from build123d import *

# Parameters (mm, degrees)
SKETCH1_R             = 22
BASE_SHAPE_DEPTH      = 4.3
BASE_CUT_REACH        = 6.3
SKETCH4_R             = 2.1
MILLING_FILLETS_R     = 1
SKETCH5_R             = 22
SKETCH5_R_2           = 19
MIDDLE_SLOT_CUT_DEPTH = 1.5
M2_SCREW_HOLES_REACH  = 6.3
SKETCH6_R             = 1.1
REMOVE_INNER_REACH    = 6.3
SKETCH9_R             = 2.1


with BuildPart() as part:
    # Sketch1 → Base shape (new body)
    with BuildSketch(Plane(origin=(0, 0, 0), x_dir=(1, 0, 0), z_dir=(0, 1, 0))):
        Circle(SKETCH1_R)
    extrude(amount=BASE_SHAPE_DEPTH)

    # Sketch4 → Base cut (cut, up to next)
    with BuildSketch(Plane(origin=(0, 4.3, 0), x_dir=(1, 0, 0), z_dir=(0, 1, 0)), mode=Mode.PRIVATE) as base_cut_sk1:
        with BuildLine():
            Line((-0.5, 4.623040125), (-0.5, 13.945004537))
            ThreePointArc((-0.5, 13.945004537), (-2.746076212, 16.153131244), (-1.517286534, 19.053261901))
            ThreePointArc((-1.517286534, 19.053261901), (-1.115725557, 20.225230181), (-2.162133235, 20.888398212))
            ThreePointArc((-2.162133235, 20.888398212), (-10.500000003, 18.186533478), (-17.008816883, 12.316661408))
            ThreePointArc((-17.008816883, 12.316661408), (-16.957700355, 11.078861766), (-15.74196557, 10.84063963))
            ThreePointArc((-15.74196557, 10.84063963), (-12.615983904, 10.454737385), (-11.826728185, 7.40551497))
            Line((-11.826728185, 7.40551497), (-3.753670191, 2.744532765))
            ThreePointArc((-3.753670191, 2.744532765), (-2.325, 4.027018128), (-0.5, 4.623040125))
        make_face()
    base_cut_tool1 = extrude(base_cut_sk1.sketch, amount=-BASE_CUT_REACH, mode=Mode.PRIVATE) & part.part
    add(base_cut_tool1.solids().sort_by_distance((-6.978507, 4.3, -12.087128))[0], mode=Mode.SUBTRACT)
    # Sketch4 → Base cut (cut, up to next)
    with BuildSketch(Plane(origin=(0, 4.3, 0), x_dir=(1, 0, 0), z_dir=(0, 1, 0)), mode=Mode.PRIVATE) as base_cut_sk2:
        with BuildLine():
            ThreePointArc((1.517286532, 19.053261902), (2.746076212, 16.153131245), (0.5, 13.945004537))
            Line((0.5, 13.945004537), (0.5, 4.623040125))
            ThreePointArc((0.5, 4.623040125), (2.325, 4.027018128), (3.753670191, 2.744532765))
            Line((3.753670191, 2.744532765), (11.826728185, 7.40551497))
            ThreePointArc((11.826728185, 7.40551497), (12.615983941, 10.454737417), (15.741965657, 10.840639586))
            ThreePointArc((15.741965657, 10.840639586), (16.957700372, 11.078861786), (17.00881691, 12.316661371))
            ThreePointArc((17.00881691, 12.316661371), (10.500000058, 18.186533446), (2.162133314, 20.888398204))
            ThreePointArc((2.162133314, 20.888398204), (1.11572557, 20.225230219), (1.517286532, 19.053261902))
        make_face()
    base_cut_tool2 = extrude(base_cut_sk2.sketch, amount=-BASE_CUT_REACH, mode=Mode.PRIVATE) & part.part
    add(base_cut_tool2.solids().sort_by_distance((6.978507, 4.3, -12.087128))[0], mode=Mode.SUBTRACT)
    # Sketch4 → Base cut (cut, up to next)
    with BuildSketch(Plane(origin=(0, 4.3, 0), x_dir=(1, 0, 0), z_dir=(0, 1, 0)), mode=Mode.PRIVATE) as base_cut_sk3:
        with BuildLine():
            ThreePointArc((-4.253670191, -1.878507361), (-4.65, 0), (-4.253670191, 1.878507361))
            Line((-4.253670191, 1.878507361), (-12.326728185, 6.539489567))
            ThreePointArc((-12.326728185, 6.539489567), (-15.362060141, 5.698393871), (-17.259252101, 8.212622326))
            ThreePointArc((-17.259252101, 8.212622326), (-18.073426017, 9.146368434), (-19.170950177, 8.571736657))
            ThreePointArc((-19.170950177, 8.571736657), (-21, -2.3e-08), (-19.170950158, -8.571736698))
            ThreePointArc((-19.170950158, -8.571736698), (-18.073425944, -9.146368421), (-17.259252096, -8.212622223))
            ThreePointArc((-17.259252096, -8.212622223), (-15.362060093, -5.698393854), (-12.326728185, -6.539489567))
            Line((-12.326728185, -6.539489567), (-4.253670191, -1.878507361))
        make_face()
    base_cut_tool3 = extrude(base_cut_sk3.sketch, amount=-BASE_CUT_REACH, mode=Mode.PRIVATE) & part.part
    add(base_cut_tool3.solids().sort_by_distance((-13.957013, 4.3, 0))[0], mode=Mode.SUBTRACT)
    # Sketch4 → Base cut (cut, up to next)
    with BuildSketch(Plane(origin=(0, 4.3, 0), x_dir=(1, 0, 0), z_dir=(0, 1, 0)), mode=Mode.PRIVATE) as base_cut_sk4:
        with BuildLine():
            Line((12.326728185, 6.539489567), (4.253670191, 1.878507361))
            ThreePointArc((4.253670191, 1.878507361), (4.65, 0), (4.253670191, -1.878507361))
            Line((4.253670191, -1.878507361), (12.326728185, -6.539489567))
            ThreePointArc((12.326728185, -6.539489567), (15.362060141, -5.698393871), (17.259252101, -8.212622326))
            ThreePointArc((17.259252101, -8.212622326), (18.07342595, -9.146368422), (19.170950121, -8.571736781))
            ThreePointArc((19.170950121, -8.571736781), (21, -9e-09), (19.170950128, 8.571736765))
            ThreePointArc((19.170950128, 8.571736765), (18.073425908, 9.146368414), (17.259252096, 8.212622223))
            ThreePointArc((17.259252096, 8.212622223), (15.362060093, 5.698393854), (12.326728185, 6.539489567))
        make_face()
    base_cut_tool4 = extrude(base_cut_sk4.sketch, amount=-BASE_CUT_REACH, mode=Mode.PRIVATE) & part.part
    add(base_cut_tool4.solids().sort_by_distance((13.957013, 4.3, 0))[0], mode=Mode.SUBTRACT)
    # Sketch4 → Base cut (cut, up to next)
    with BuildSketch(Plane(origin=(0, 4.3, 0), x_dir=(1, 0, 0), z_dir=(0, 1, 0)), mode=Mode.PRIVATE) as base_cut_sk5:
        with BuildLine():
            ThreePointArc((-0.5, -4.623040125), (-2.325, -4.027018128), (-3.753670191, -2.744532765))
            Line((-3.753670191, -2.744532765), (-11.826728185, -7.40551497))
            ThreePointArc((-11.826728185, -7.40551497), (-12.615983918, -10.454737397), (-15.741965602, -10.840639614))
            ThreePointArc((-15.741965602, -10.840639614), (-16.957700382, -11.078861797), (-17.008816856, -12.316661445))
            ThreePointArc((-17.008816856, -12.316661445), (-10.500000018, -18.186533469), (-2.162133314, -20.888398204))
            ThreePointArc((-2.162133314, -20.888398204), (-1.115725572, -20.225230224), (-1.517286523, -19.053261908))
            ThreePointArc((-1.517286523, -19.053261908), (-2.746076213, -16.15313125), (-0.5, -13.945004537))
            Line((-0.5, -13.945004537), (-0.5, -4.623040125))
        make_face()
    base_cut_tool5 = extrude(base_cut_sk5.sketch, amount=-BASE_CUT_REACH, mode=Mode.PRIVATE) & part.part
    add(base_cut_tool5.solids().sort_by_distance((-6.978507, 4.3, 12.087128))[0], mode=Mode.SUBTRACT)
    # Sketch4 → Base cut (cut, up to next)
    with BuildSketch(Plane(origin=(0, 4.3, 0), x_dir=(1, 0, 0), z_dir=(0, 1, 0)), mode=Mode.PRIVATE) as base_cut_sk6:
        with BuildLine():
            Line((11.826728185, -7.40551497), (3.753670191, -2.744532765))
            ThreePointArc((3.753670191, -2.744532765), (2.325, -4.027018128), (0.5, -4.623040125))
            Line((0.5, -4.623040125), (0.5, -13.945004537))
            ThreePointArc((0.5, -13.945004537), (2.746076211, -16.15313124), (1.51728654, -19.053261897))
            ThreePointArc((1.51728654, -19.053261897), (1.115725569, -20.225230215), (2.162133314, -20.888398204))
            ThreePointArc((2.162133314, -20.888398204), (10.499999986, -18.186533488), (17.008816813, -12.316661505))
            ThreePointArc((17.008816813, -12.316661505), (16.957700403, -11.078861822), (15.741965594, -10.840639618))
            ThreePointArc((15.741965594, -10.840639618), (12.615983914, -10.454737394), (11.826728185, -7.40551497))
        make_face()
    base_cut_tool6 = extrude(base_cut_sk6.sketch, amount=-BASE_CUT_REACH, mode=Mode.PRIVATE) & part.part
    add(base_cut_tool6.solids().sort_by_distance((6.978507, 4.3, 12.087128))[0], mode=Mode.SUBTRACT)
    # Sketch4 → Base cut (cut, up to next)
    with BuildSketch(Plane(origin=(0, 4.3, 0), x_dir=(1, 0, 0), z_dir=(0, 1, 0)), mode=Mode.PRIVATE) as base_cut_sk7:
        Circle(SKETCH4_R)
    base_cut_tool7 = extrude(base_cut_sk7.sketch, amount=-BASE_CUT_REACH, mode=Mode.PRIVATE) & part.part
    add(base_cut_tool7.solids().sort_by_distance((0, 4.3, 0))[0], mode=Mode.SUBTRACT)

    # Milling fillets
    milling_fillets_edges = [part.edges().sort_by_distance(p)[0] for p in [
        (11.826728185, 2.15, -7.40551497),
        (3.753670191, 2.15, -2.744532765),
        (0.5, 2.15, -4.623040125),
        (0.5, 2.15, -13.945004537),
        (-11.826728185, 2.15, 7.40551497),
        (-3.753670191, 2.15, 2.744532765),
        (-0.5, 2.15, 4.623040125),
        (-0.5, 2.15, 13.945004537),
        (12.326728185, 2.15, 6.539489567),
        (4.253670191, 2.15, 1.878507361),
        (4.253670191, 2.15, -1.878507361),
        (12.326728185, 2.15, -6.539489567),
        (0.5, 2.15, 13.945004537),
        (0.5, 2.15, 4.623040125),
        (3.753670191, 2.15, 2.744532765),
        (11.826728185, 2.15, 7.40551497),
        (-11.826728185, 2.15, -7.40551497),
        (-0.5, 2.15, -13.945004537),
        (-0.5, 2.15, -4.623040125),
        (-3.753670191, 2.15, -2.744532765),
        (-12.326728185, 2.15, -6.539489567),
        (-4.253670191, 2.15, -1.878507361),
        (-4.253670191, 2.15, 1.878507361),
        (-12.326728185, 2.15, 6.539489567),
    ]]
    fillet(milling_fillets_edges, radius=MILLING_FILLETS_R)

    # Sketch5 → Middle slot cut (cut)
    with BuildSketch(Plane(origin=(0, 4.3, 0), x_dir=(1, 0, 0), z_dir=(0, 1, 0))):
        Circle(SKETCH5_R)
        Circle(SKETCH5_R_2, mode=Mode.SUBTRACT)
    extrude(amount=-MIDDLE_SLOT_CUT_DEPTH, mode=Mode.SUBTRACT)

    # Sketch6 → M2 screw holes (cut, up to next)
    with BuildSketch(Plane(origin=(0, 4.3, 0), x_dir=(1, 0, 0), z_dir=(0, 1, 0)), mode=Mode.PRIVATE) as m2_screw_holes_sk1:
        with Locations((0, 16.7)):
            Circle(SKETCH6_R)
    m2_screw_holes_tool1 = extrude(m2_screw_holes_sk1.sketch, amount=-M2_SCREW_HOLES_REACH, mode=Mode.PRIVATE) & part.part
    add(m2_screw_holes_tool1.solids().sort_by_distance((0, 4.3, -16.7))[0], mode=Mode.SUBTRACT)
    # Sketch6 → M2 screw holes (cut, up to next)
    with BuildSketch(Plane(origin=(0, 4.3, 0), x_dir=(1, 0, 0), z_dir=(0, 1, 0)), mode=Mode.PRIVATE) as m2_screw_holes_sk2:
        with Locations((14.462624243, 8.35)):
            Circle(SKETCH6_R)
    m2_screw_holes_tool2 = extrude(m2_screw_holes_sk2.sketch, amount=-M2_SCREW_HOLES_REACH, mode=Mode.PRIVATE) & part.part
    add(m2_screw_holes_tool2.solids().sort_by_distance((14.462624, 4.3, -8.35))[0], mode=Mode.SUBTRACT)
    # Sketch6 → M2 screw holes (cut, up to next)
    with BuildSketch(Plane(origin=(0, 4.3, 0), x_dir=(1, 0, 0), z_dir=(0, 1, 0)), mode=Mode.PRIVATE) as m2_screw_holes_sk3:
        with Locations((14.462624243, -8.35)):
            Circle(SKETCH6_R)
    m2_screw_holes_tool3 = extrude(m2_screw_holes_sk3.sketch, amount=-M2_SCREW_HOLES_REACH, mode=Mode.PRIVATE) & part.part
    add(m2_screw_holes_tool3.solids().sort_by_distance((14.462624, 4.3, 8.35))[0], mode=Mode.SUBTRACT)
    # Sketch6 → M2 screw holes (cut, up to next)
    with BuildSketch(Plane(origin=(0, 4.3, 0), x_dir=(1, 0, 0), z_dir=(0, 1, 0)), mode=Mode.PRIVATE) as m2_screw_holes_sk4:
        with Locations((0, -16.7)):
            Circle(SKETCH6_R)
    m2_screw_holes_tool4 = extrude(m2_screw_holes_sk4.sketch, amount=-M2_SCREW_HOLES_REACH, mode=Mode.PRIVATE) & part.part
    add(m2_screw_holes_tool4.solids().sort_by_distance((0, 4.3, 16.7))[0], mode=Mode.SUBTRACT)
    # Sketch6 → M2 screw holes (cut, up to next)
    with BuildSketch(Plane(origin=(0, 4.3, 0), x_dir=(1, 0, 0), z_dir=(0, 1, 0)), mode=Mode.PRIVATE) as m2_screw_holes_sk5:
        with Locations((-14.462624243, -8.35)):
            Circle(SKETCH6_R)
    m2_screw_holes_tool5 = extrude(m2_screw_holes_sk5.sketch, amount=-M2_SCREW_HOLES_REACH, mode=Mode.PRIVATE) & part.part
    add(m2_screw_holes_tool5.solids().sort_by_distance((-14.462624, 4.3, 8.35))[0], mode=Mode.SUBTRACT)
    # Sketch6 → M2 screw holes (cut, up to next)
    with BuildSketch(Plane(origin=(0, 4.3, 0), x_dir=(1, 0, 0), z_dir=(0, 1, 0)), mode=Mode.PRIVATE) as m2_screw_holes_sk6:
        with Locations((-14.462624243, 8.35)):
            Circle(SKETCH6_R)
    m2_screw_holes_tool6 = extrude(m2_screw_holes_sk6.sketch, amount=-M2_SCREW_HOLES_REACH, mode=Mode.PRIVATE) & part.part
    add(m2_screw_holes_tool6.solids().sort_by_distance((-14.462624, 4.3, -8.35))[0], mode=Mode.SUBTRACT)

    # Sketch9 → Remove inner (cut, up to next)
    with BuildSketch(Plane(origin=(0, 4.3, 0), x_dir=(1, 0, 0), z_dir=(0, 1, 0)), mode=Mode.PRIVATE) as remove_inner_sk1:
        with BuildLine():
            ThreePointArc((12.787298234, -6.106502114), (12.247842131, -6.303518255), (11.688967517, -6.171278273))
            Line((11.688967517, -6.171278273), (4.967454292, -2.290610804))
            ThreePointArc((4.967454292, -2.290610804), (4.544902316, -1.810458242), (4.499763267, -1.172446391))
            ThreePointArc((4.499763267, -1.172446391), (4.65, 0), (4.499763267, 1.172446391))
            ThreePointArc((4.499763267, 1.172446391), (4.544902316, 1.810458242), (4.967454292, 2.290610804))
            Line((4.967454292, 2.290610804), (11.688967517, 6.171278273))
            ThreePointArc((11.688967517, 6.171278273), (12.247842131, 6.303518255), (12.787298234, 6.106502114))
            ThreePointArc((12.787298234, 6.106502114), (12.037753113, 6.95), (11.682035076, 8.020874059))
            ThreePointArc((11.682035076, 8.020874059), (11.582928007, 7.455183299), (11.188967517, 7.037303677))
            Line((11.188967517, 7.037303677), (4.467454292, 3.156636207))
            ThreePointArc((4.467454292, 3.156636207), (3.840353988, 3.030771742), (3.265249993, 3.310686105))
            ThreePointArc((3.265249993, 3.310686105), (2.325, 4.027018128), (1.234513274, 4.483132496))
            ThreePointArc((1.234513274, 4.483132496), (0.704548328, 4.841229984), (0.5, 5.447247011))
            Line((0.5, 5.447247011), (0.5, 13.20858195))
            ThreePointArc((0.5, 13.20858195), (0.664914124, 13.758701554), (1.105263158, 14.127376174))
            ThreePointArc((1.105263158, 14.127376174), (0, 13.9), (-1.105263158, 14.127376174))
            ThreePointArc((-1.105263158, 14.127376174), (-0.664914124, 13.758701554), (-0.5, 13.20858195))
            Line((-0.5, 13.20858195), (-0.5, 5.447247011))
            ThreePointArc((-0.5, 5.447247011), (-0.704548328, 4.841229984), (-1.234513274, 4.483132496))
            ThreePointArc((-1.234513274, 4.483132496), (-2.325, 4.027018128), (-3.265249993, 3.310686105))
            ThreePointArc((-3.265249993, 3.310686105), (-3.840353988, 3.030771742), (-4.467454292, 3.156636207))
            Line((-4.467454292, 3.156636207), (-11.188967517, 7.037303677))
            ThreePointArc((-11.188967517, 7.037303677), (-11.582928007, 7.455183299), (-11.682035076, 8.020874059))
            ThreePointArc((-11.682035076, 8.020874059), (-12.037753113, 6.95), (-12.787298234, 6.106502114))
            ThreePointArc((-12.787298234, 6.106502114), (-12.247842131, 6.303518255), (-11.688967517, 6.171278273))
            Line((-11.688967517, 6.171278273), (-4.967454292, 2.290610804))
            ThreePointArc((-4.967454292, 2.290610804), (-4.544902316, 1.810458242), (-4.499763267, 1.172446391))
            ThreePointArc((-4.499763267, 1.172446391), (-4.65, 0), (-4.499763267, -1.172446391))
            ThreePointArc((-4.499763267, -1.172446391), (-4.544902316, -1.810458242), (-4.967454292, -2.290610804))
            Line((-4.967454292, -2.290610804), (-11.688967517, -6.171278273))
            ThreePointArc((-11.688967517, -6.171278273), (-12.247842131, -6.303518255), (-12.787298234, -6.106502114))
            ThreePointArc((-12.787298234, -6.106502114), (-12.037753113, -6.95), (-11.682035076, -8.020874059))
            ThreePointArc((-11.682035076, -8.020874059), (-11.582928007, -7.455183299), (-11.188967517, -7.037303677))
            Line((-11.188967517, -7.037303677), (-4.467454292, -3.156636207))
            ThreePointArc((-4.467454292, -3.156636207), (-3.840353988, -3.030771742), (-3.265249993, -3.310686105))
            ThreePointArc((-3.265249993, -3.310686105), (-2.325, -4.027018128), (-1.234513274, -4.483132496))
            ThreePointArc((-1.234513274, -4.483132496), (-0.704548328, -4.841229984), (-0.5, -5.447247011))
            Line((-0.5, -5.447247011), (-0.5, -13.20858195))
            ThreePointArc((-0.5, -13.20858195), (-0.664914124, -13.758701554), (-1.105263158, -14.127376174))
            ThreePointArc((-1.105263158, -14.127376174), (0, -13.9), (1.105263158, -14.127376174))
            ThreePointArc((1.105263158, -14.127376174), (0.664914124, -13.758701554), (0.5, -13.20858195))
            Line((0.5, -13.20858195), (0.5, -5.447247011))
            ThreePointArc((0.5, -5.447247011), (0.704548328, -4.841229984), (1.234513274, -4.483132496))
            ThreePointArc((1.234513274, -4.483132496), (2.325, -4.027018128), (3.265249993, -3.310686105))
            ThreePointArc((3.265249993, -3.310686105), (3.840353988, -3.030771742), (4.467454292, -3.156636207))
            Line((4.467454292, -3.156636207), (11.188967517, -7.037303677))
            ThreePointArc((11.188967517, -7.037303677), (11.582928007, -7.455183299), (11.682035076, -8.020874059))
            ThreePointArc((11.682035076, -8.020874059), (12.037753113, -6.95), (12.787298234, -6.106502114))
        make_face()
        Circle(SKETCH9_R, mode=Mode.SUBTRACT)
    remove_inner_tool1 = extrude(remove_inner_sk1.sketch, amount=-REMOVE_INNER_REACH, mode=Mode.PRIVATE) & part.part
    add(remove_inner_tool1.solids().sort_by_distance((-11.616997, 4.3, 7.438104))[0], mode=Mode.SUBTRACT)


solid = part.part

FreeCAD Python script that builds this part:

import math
import FreeCAD as App
import Part
import Sketcher

V = App.Vector
Q = App.Units.Quantity


def edges_at(feature, points):
    """Names of the edges that pass closest to the given points."""
    edges = feature.Shape.Edges
    near = lambda p: min(range(len(edges)), key=lambda i: edges[i].distToShape(Part.Vertex(*p))[0])
    return sorted({f"Edge{near(p) + 1}" for p in points})

doc = App.newDocument("Part")
body = doc.addObject("PartDesign::Body", "Body")

sketch1 = doc.addObject("Sketcher::SketchObject", "Sketch")
body.addObject(sketch1)
sketch1.AttachmentSupport = (doc.XZ_Plane, [""])
sketch1.MapMode = "FlatFace"
sketch1.addGeometry(Part.Circle(V(0, 0, 0), V(0, 0, 1), 22), False)
sketch1.addConstraint([
    Sketcher.Constraint("Coincident", 0, 3, -1, 1),
    Sketcher.Constraint("Diameter", 0, Q("44 mm")),
])
pad1 = doc.addObject("PartDesign::Pad", "Pad")
body.addObject(pad1)
pad1.Profile = sketch1
pad1.Length = 4.3
pad1.Reversed = True

sketch2 = doc.addObject("Sketcher::SketchObject", "Sketch001")
body.addObject(sketch2)
sketch2.AttachmentSupport = (doc.XZ_Plane, [""])
sketch2.MapMode = "FlatFace"
sketch2.AttachmentOffset = App.Placement(V(0, 0, -4.3), App.Rotation())
sketch2.addGeometry([
    Part.LineSegment(V(-0.5, -4.6, 0), V(-0.5, -13.9, 0)),
    Part.ArcOfCircle(Part.Circle(V(0, -16.7, 0), V(0, 0, 1), 2.8), math.radians(100), math.radians(237)),
    Part.ArcOfCircle(Part.Circle(V(-2.1, -19.9, 0), V(0, 0, 1), 1), math.radians(-96), math.radians(57)),
    Part.ArcOfCircle(Part.Circle(V(0, 0, 0), V(0, 0, 1), 21), math.radians(-144), math.radians(-96)),
    Part.ArcOfCircle(Part.Circle(V(-16.2, -11.7, 0), V(0, 0, 1), 1), math.radians(63), math.radians(216)),
    Part.ArcOfCircle(Part.Circle(V(-14.5, -8.3, 0), V(0, 0, 1), 2.8), math.radians(-117), math.radians(20)),
    Part.LineSegment(V(-11.8, -7.4, 0), V(-3.8, -2.7, 0)),
    Part.ArcOfCircle(Part.Circle(V(0, 0, 0), V(0, 0, 1), 4.6), math.radians(-144), math.radians(-96)),
], False)
sketch2.addConstraint([
    Sketcher.Constraint("Coincident", 0, 2, 1, 1),
    Sketcher.Constraint("Tangent", 1, 2, 2, 2),
    Sketcher.Constraint("Tangent", 2, 1, 3, 2),
    Sketcher.Constraint("Tangent", 3, 1, 4, 2),
    Sketcher.Constraint("Tangent", 4, 1, 5, 1),
    Sketcher.Constraint("Coincident", 5, 2, 6, 1),
    Sketcher.Constraint("Coincident", 6, 2, 7, 1),
    Sketcher.Constraint("Coincident", 7, 2, 0, 1),
    Sketcher.Constraint("Vertical", 0),
    Sketcher.Constraint("Coincident", 3, 3, -1, 1),
    Sketcher.Constraint("Coincident", 7, 3, -1, 1),
    Sketcher.Constraint("Equal", 2, 4),
    Sketcher.Constraint("Equal", 1, 5),
    Sketcher.Constraint("PointOnObject", 1, 3, -2),
    Sketcher.Constraint("Radius", 2, Q("1 mm")),
    Sketcher.Constraint("Radius", 3, Q("21 mm")),
    Sketcher.Constraint("Radius", 1, Q("2.8 mm")),
    Sketcher.Constraint("Angle", 6, Q("30 deg")),
    Sketcher.Constraint("Radius", 7, Q("4.65 mm")),
    Sketcher.Constraint("DistanceY", 1, 3, -1, 1, Q("16.7 mm")),
    Sketcher.Constraint("DistanceX", 0, 2, -1, 1, Q("0.5 mm")),
    Sketcher.Constraint("DistanceY", 5, 3, -1, 1, Q("8.35 mm")),
    Sketcher.Constraint("DistanceX", 4, 3, 2, 3, Q("14.139699 mm")),
    Sketcher.Constraint("DistanceX", 5, 2, -1, 1, Q("11.826728 mm")),
])
pocket1 = doc.addObject("PartDesign::Pocket", "Pocket")
body.addObject(pocket1)
pocket1.Profile = sketch2
pocket1.Type = "UpToFirst"
pocket1.Reversed = True

sketch3 = doc.addObject("Sketcher::SketchObject", "Sketch002")
body.addObject(sketch3)
sketch3.AttachmentSupport = (doc.XZ_Plane, [""])
sketch3.MapMode = "FlatFace"
sketch3.AttachmentOffset = App.Placement(V(0, 0, -4.3), App.Rotation())
sketch3.addGeometry([
    Part.ArcOfCircle(Part.Circle(V(0, -16.7, 0), V(0, 0, 1), 2.8), math.radians(-57), math.radians(80)),
    Part.LineSegment(V(0.5, -13.9, 0), V(0.5, -4.6, 0)),
    Part.ArcOfCircle(Part.Circle(V(0, 0, 0), V(0, 0, 1), 4.6), math.radians(-84), math.radians(-36)),
    Part.LineSegment(V(3.8, -2.7, 0), V(11.8, -7.4, 0)),
    Part.ArcOfCircle(Part.Circle(V(14.5, -8.3, 0), V(0, 0, 1), 2.8), math.radians(160), math.radians(297)),
    Part.ArcOfCircle(Part.Circle(V(16.2, -11.7, 0), V(0, 0, 1), 1), math.radians(-36), math.radians(117)),
    Part.ArcOfCircle(Part.Circle(V(0, 0, 0), V(0, 0, 1), 21), math.radians(-84), math.radians(-36)),
    Part.ArcOfCircle(Part.Circle(V(2.1, -19.9, 0), V(0, 0, 1), 1), math.radians(123), math.radians(276)),
], False)
sketch3.addConstraint([
    Sketcher.Constraint("Coincident", 0, 2, 1, 1),
    Sketcher.Constraint("Coincident", 1, 2, 2, 1),
    Sketcher.Constraint("Coincident", 2, 2, 3, 1),
    Sketcher.Constraint("Coincident", 3, 2, 4, 1),
    Sketcher.Constraint("Tangent", 4, 2, 5, 2),
    Sketcher.Constraint("Tangent", 5, 1, 6, 2),
    Sketcher.Constraint("Tangent", 6, 1, 7, 2),
    Sketcher.Constraint("Tangent", 7, 1, 0, 1),
    Sketcher.Constraint("Vertical", 1),
    Sketcher.Constraint("Coincident", 2, 3, -1, 1),
    Sketcher.Constraint("Coincident", 6, 3, -1, 1),
    Sketcher.Constraint("Equal", 0, 4),
    Sketcher.Constraint("Equal", 5, 7),
    Sketcher.Constraint("PointOnObject", 0, 3, -2),
    Sketcher.Constraint("Radius", 5, Q("1 mm")),
    Sketcher.Constraint("Radius", 6, Q("21 mm")),
    Sketcher.Constraint("Radius", 0, Q("2.8 mm")),
    Sketcher.Constraint("Angle", 3, Q("-30 deg")),
    Sketcher.Constraint("Radius", 2, Q("4.65 mm")),
    Sketcher.Constraint("DistanceY", 0, 3, -1, 1, Q("16.7 mm")),
    Sketcher.Constraint("DistanceX", -1, 1, 0, 2, Q("0.5 mm")),
    Sketcher.Constraint("DistanceY", 4, 3, -1, 1, Q("8.35 mm")),
    Sketcher.Constraint("DistanceX", 7, 3, 5, 3, Q("14.139699 mm")),
    Sketcher.Constraint("DistanceX", -1, 1, 2, 2, Q("3.75367 mm")),
])
pocket2 = doc.addObject("PartDesign::Pocket", "Pocket001")
body.addObject(pocket2)
pocket2.Profile = sketch3
pocket2.Type = "UpToFirst"
pocket2.Reversed = True

sketch4 = doc.addObject("Sketcher::SketchObject", "Sketch003")
body.addObject(sketch4)
sketch4.AttachmentSupport = (doc.XZ_Plane, [""])
sketch4.MapMode = "FlatFace"
sketch4.AttachmentOffset = App.Placement(V(0, 0, -4.3), App.Rotation())
sketch4.addGeometry([
    Part.ArcOfCircle(Part.Circle(V(0, 0, 0), V(0, 0, 1), 4.6), math.radians(156), math.radians(204)),
    Part.LineSegment(V(-4.3, -1.9, 0), V(-12.3, -6.5, 0)),
    Part.ArcOfCircle(Part.Circle(V(-14.5, -8.4, 0), V(0, 0, 1), 2.8), math.radians(40), math.radians(177)),
    Part.ArcOfCircle(Part.Circle(V(-18.3, -8.2, 0), V(0, 0, 1), 1), math.radians(-156), math.radians(-3)),
    Part.ArcOfCircle(Part.Circle(V(0, 0, 0), V(0, 0, 1), 21), math.radians(156), math.radians(204)),
    Part.ArcOfCircle(Part.Circle(V(-18.3, 8.2, 0), V(0, 0, 1), 1), math.radians(3), math.radians(156)),
    Part.ArcOfCircle(Part.Circle(V(-14.5, 8.3, 0), V(0, 0, 1), 2.8), math.radians(-177), math.radians(-40)),
    Part.LineSegment(V(-12.3, 6.5, 0), V(-4.3, 1.9, 0)),
], False)
sketch4.addConstraint([
    Sketcher.Constraint("Coincident", 0, 2, 1, 1),
    Sketcher.Constraint("Coincident", 1, 2, 2, 1),
    Sketcher.Constraint("Tangent", 2, 2, 3, 2),
    Sketcher.Constraint("Tangent", 3, 1, 4, 2),
    Sketcher.Constraint("Tangent", 4, 1, 5, 2),
    Sketcher.Constraint("Tangent", 5, 1, 6, 1),
    Sketcher.Constraint("Coincident", 6, 2, 7, 1),
    Sketcher.Constraint("Coincident", 7, 2, 0, 1),
    Sketcher.Constraint("Coincident", 0, 3, -1, 1),
    Sketcher.Constraint("Coincident", 4, 3, -1, 1),
    Sketcher.Constraint("Equal", 3, 5),
    Sketcher.Constraint("Equal", 2, 6),
    Sketcher.Constraint("Symmetric", 2, 3, 6, 3, -1),
    Sketcher.Constraint("Vertical", 1, 2, 6, 2),
    Sketcher.Constraint("Vertical", 0, 2, 7, 2),
    Sketcher.Constraint("Radius", 3, Q("1 mm")),
    Sketcher.Constraint("Radius", 4, Q("21 mm")),
    Sketcher.Constraint("Radius", 2, Q("2.8 mm")),
    Sketcher.Constraint("Angle", 1, Q("-150 deg")),
    Sketcher.Constraint("Radius", 0, Q("4.65 mm")),
    Sketcher.Constraint("DistanceY", 2, 3, 6, 3, Q("16.7 mm")),
    Sketcher.Constraint("DistanceX", 3, 1, 2, 2, Q("1.911698 mm")),
    Sketcher.Constraint("DistanceX", 0, 2, -1, 1, Q("4.25367 mm")),
])
pocket3 = doc.addObject("PartDesign::Pocket", "Pocket002")
body.addObject(pocket3)
pocket3.Profile = sketch4
pocket3.Type = "UpToFirst"
pocket3.Reversed = True

sketch5 = doc.addObject("Sketcher::SketchObject", "Sketch004")
body.addObject(sketch5)
sketch5.AttachmentSupport = (doc.XZ_Plane, [""])
sketch5.MapMode = "FlatFace"
sketch5.AttachmentOffset = App.Placement(V(0, 0, -4.3), App.Rotation())
sketch5.addGeometry([
    Part.LineSegment(V(12.3, -6.5, 0), V(4.3, -1.9, 0)),
    Part.ArcOfCircle(Part.Circle(V(0, 0, 0), V(0, 0, 1), 4.6), math.radians(-24), math.radians(24)),
    Part.LineSegment(V(4.3, 1.9, 0), V(12.3, 6.5, 0)),
    Part.ArcOfCircle(Part.Circle(V(14.5, 8.4, 0), V(0, 0, 1), 2.8), math.radians(-140), math.radians(-3)),
    Part.ArcOfCircle(Part.Circle(V(18.3, 8.2, 0), V(0, 0, 1), 1), math.radians(24), math.radians(177)),
    Part.ArcOfCircle(Part.Circle(V(0, 0, 0), V(0, 0, 1), 21), math.radians(-24), math.radians(24)),
    Part.ArcOfCircle(Part.Circle(V(18.3, -8.2, 0), V(0, 0, 1), 1), math.radians(-177), math.radians(-24)),
    Part.ArcOfCircle(Part.Circle(V(14.5, -8.3, 0), V(0, 0, 1), 2.8), math.radians(3), math.radians(140)),
], False)
sketch5.addConstraint([
    Sketcher.Constraint("Coincident", 0, 2, 1, 1),
    Sketcher.Constraint("Coincident", 1, 2, 2, 1),
    Sketcher.Constraint("Coincident", 2, 2, 3, 1),
    Sketcher.Constraint("Tangent", 3, 2, 4, 2),
    Sketcher.Constraint("Tangent", 4, 1, 5, 2),
    Sketcher.Constraint("Tangent", 5, 1, 6, 2),
    Sketcher.Constraint("Tangent", 6, 1, 7, 1),
    Sketcher.Constraint("Coincident", 7, 2, 0, 1),
    Sketcher.Constraint("Coincident", 1, 3, -1, 1),
    Sketcher.Constraint("Coincident", 5, 3, -1, 1),
    Sketcher.Constraint("Equal", 4, 6),
    Sketcher.Constraint("Equal", 3, 7),
    Sketcher.Constraint("Symmetric", 3, 3, 7, 3, -1),
    Sketcher.Constraint("Vertical", 0, 2, 1, 2),
    Sketcher.Constraint("Vertical", 2, 2, 7, 2),
    Sketcher.Constraint("Radius", 4, Q("1 mm")),
    Sketcher.Constraint("Radius", 5, Q("21 mm")),
    Sketcher.Constraint("Radius", 3, Q("2.8 mm")),
    Sketcher.Constraint("Angle", 0, Q("150 deg")),
    Sketcher.Constraint("Radius", 1, Q("4.65 mm")),
    Sketcher.Constraint("DistanceY", 7, 3, 3, 3, Q("16.7 mm")),
    Sketcher.Constraint("DistanceX", 3, 2, 4, 1, Q("1.911698 mm")),
    Sketcher.Constraint("DistanceX", -1, 1, 0, 2, Q("4.25367 mm")),
])
pocket4 = doc.addObject("PartDesign::Pocket", "Pocket003")
body.addObject(pocket4)
pocket4.Profile = sketch5
pocket4.Type = "UpToFirst"
pocket4.Reversed = True

sketch6 = doc.addObject("Sketcher::SketchObject", "Sketch005")
body.addObject(sketch6)
sketch6.AttachmentSupport = (doc.XZ_Plane, [""])
sketch6.MapMode = "FlatFace"
sketch6.AttachmentOffset = App.Placement(V(0, 0, -4.3), App.Rotation())
sketch6.addGeometry([
    Part.ArcOfCircle(Part.Circle(V(0, 0, 0), V(0, 0, 1), 4.6), math.radians(96), math.radians(144)),
    Part.LineSegment(V(-3.8, 2.7, 0), V(-11.8, 7.4, 0)),
    Part.ArcOfCircle(Part.Circle(V(-14.5, 8.3, 0), V(0, 0, 1), 2.8), math.radians(-20), math.radians(117)),
    Part.ArcOfCircle(Part.Circle(V(-16.2, 11.7, 0), V(0, 0, 1), 1), math.radians(144), math.radians(297)),
    Part.ArcOfCircle(Part.Circle(V(0, 0, 0), V(0, 0, 1), 21), math.radians(96), math.radians(144)),
    Part.ArcOfCircle(Part.Circle(V(-2.1, 19.9, 0), V(0, 0, 1), 1), math.radians(-57), math.radians(96)),
    Part.ArcOfCircle(Part.Circle(V(0, 16.7, 0), V(0, 0, 1), 2.8), math.radians(123), math.radians(260)),
    Part.LineSegment(V(-0.5, 13.9, 0), V(-0.5, 4.6, 0)),
], False)
sketch6.addConstraint([
    Sketcher.Constraint("Coincident", 0, 2, 1, 1),
    Sketcher.Constraint("Coincident", 1, 2, 2, 1),
    Sketcher.Constraint("Tangent", 2, 2, 3, 2),
    Sketcher.Constraint("Tangent", 3, 1, 4, 2),
    Sketcher.Constraint("Tangent", 4, 1, 5, 2),
    Sketcher.Constraint("Tangent", 5, 1, 6, 1),
    Sketcher.Constraint("Coincident", 6, 2, 7, 1),
    Sketcher.Constraint("Coincident", 7, 2, 0, 1),
    Sketcher.Constraint("Vertical", 7),
    Sketcher.Constraint("Coincident", 0, 3, -1, 1),
    Sketcher.Constraint("Coincident", 4, 3, -1, 1),
    Sketcher.Constraint("Equal", 3, 5),
    Sketcher.Constraint("Equal", 2, 6),
    Sketcher.Constraint("PointOnObject", 6, 3, -2),
    Sketcher.Constraint("Radius", 3, Q("1 mm")),
    Sketcher.Constraint("Radius", 4, Q("21 mm")),
    Sketcher.Constraint("Radius", 2, Q("2.8 mm")),
    Sketcher.Constraint("Angle", 1, Q("150 deg")),
    Sketcher.Constraint("Radius", 0, Q("4.65 mm")),
    Sketcher.Constraint("DistanceY", -1, 1, 6, 3, Q("16.7 mm")),
    Sketcher.Constraint("DistanceX", 6, 2, -1, 1, Q("0.5 mm")),
    Sketcher.Constraint("DistanceY", -1, 1, 2, 3, Q("8.35 mm")),
    Sketcher.Constraint("DistanceX", 3, 3, 5, 3, Q("14.139699 mm")),
    Sketcher.Constraint("DistanceX", 0, 2, -1, 1, Q("3.75367 mm")),
])
pocket5 = doc.addObject("PartDesign::Pocket", "Pocket004")
body.addObject(pocket5)
pocket5.Profile = sketch6
pocket5.Type = "UpToFirst"
pocket5.Reversed = True

sketch7 = doc.addObject("Sketcher::SketchObject", "Sketch006")
body.addObject(sketch7)
sketch7.AttachmentSupport = (doc.XZ_Plane, [""])
sketch7.MapMode = "FlatFace"
sketch7.AttachmentOffset = App.Placement(V(0, 0, -4.3), App.Rotation())
sketch7.addGeometry([
    Part.LineSegment(V(11.8, 7.4, 0), V(3.8, 2.7, 0)),
    Part.ArcOfCircle(Part.Circle(V(0, 0, 0), V(0, 0, 1), 4.6), math.radians(36), math.radians(84)),
    Part.LineSegment(V(0.5, 4.6, 0), V(0.5, 13.9, 0)),
    Part.ArcOfCircle(Part.Circle(V(0, 16.7, 0), V(0, 0, 1), 2.8), math.radians(-80), math.radians(57)),
    Part.ArcOfCircle(Part.Circle(V(2.1, 19.9, 0), V(0, 0, 1), 1), math.radians(84), math.radians(237)),
    Part.ArcOfCircle(Part.Circle(V(0, 0, 0), V(0, 0, 1), 21), math.radians(36), math.radians(84)),
    Part.ArcOfCircle(Part.Circle(V(16.2, 11.7, 0), V(0, 0, 1), 1), math.radians(-117), math.radians(36)),
    Part.ArcOfCircle(Part.Circle(V(14.5, 8.3, 0), V(0, 0, 1), 2.8), math.radians(63), math.radians(200)),
], False)
sketch7.addConstraint([
    Sketcher.Constraint("Coincident", 0, 2, 1, 1),
    Sketcher.Constraint("Coincident", 1, 2, 2, 1),
    Sketcher.Constraint("Coincident", 2, 2, 3, 1),
    Sketcher.Constraint("Tangent", 3, 2, 4, 2),
    Sketcher.Constraint("Tangent", 4, 1, 5, 2),
    Sketcher.Constraint("Tangent", 5, 1, 6, 2),
    Sketcher.Constraint("Tangent", 6, 1, 7, 1),
    Sketcher.Constraint("Coincident", 7, 2, 0, 1),
    Sketcher.Constraint("Vertical", 2),
    Sketcher.Constraint("Coincident", 1, 3, -1, 1),
    Sketcher.Constraint("Coincident", 5, 3, -1, 1),
    Sketcher.Constraint("Equal", 4, 6),
    Sketcher.Constraint("Equal", 3, 7),
    Sketcher.Constraint("PointOnObject", 3, 3, -2),
    Sketcher.Constraint("Radius", 4, Q("1 mm")),
    Sketcher.Constraint("Radius", 5, Q("21 mm")),
    Sketcher.Constraint("Radius", 3, Q("2.8 mm")),
    Sketcher.Constraint("Angle", 0, Q("-150 deg")),
    Sketcher.Constraint("Radius", 1, Q("4.65 mm")),
    Sketcher.Constraint("DistanceY", -1, 1, 3, 3, Q("16.7 mm")),
    Sketcher.Constraint("DistanceX", -1, 1, 1, 2, Q("0.5 mm")),
    Sketcher.Constraint("DistanceY", -1, 1, 7, 3, Q("8.35 mm")),
    Sketcher.Constraint("DistanceX", 4, 3, 6, 3, Q("14.139699 mm")),
    Sketcher.Constraint("DistanceX", -1, 1, 0, 2, Q("3.75367 mm")),
])
pocket6 = doc.addObject("PartDesign::Pocket", "Pocket005")
body.addObject(pocket6)
pocket6.Profile = sketch7
pocket6.Type = "UpToFirst"
pocket6.Reversed = True

sketch8 = doc.addObject("Sketcher::SketchObject", "Sketch007")
body.addObject(sketch8)
sketch8.AttachmentSupport = (doc.XZ_Plane, [""])
sketch8.MapMode = "FlatFace"
sketch8.AttachmentOffset = App.Placement(V(0, 0, -4.3), App.Rotation())
sketch8.addGeometry(Part.Circle(V(0, 0, 0), V(0, 0, 1), 2.1), False)
sketch8.addConstraint([
    Sketcher.Constraint("Coincident", 0, 3, -1, 1),
    Sketcher.Constraint("Diameter", 0, Q("4.2 mm")),
])
pocket7 = doc.addObject("PartDesign::Pocket", "Pocket006")
body.addObject(pocket7)
pocket7.Profile = sketch8
pocket7.Type = "UpToFirst"
pocket7.Reversed = True
doc.recompute()

fillet = doc.addObject("PartDesign::Fillet", "Fillet")
body.addObject(fillet)
fillet.Base = (pocket7, edges_at(pocket7, [
    (11.827, 2.15, -7.406),
    (3.754, 2.15, -2.745),
    (0.5, 2.15, -4.623),
    (0.5, 2.15, -13.945),
    (-11.827, 2.15, 7.406),
    (-3.754, 2.15, 2.745),
    (-0.5, 2.15, 4.623),
    (-0.5, 2.15, 13.945),
    (12.327, 2.15, 6.539),
    (4.254, 2.15, 1.879),
    (4.254, 2.15, -1.879),
    (12.327, 2.15, -6.539),
    (0.5, 2.15, 13.945),
    (0.5, 2.15, 4.623),
    (3.754, 2.15, 2.745),
    (11.827, 2.15, 7.406),
    (-11.827, 2.15, -7.406),
    (-0.5, 2.15, -13.945),
    (-0.5, 2.15, -4.623),
    (-3.754, 2.15, -2.745),
    (-12.327, 2.15, -6.539),
    (-4.254, 2.15, -1.879),
    (-4.254, 2.15, 1.879),
    (-12.327, 2.15, 6.539),
]))
fillet.Radius = 1

sketch9 = doc.addObject("Sketcher::SketchObject", "Sketch008")
body.addObject(sketch9)
sketch9.AttachmentSupport = (doc.XZ_Plane, [""])
sketch9.MapMode = "FlatFace"
sketch9.AttachmentOffset = App.Placement(V(0, 0, -4.3), App.Rotation())
sketch9.addGeometry([
    Part.Circle(V(0, 0, 0), V(0, 0, 1), 22),
    Part.Circle(V(0, 0, 0), V(0, 0, 1), 19),
], False)
sketch9.addConstraint([
    Sketcher.Constraint("Coincident", 0, 3, -1, 1),
    Sketcher.Constraint("Coincident", 1, 3, -1, 1),
    Sketcher.Constraint("Diameter", 0, Q("44 mm")),
    Sketcher.Constraint("Diameter", 1, Q("38 mm")),
])
pocket8 = doc.addObject("PartDesign::Pocket", "Pocket007")
body.addObject(pocket8)
pocket8.Profile = sketch9
pocket8.Length = 1.5
pocket8.Reversed = True

sketch10 = doc.addObject("Sketcher::SketchObject", "Sketch009")
body.addObject(sketch10)
sketch10.AttachmentSupport = (doc.XZ_Plane, [""])
sketch10.MapMode = "FlatFace"
sketch10.AttachmentOffset = App.Placement(V(0, 0, -4.3), App.Rotation())
sketch10.addGeometry(Part.Circle(V(0, -16.7, 0), V(0, 0, 1), 1.1), False)
sketch10.addConstraint([
    Sketcher.Constraint("PointOnObject", 0, 3, -2),
    Sketcher.Constraint("Diameter", 0, Q("2.2 mm")),
    Sketcher.Constraint("DistanceY", 0, 3, -1, 1, Q("16.7 mm")),
])
pocket9 = doc.addObject("PartDesign::Pocket", "Pocket008")
body.addObject(pocket9)
pocket9.Profile = sketch10
pocket9.Type = "UpToFirst"
pocket9.Reversed = True

sketch11 = doc.addObject("Sketcher::SketchObject", "Sketch010")
body.addObject(sketch11)
sketch11.AttachmentSupport = (doc.XZ_Plane, [""])
sketch11.MapMode = "FlatFace"
sketch11.AttachmentOffset = App.Placement(V(0, 0, -4.3), App.Rotation())
sketch11.addGeometry(Part.Circle(V(14.5, -8.3, 0), V(0, 0, 1), 1.1), False)
sketch11.addConstraint([
    Sketcher.Constraint("Diameter", 0, Q("2.2 mm")),
    Sketcher.Constraint("DistanceY", 0, 3, -1, 1, Q("8.35 mm")),
    Sketcher.Constraint("DistanceX", -1, 1, 0, 3, Q("14.462624 mm")),
])
pocket10 = doc.addObject("PartDesign::Pocket", "Pocket009")
body.addObject(pocket10)
pocket10.Profile = sketch11
pocket10.Type = "UpToFirst"
pocket10.Reversed = True

sketch12 = doc.addObject("Sketcher::SketchObject", "Sketch011")
body.addObject(sketch12)
sketch12.AttachmentSupport = (doc.XZ_Plane, [""])
sketch12.MapMode = "FlatFace"
sketch12.AttachmentOffset = App.Placement(V(0, 0, -4.3), App.Rotation())
sketch12.addGeometry(Part.Circle(V(14.5, 8.3, 0), V(0, 0, 1), 1.1), False)
sketch12.addConstraint([
    Sketcher.Constraint("Diameter", 0, Q("2.2 mm")),
    Sketcher.Constraint("DistanceY", -1, 1, 0, 3, Q("8.35 mm")),
    Sketcher.Constraint("DistanceX", -1, 1, 0, 3, Q("14.462624 mm")),
])
pocket11 = doc.addObject("PartDesign::Pocket", "Pocket010")
body.addObject(pocket11)
pocket11.Profile = sketch12
pocket11.Type = "UpToFirst"
pocket11.Reversed = True

sketch13 = doc.addObject("Sketcher::SketchObject", "Sketch012")
body.addObject(sketch13)
sketch13.AttachmentSupport = (doc.XZ_Plane, [""])
sketch13.MapMode = "FlatFace"
sketch13.AttachmentOffset = App.Placement(V(0, 0, -4.3), App.Rotation())
sketch13.addGeometry(Part.Circle(V(0, 16.7, 0), V(0, 0, 1), 1.1), False)
sketch13.addConstraint([
    Sketcher.Constraint("PointOnObject", 0, 3, -2),
    Sketcher.Constraint("Diameter", 0, Q("2.2 mm")),
    Sketcher.Constraint("DistanceY", -1, 1, 0, 3, Q("16.7 mm")),
])
pocket12 = doc.addObject("PartDesign::Pocket", "Pocket011")
body.addObject(pocket12)
pocket12.Profile = sketch13
pocket12.Type = "UpToFirst"
pocket12.Reversed = True

sketch14 = doc.addObject("Sketcher::SketchObject", "Sketch013")
body.addObject(sketch14)
sketch14.AttachmentSupport = (doc.XZ_Plane, [""])
sketch14.MapMode = "FlatFace"
sketch14.AttachmentOffset = App.Placement(V(0, 0, -4.3), App.Rotation())
sketch14.addGeometry(Part.Circle(V(-14.5, 8.3, 0), V(0, 0, 1), 1.1), False)
sketch14.addConstraint([
    Sketcher.Constraint("Diameter", 0, Q("2.2 mm")),
    Sketcher.Constraint("DistanceY", -1, 1, 0, 3, Q("8.35 mm")),
    Sketcher.Constraint("DistanceX", 0, 3, -1, 1, Q("14.462624 mm")),
])
pocket13 = doc.addObject("PartDesign::Pocket", "Pocket012")
body.addObject(pocket13)
pocket13.Profile = sketch14
pocket13.Type = "UpToFirst"
pocket13.Reversed = True

sketch15 = doc.addObject("Sketcher::SketchObject", "Sketch014")
body.addObject(sketch15)
sketch15.AttachmentSupport = (doc.XZ_Plane, [""])
sketch15.MapMode = "FlatFace"
sketch15.AttachmentOffset = App.Placement(V(0, 0, -4.3), App.Rotation())
sketch15.addGeometry(Part.Circle(V(-14.5, -8.3, 0), V(0, 0, 1), 1.1), False)
sketch15.addConstraint([
    Sketcher.Constraint("Diameter", 0, Q("2.2 mm")),
    Sketcher.Constraint("DistanceY", 0, 3, -1, 1, Q("8.35 mm")),
    Sketcher.Constraint("DistanceX", 0, 3, -1, 1, Q("14.462624 mm")),
])
pocket14 = doc.addObject("PartDesign::Pocket", "Pocket013")
body.addObject(pocket14)
pocket14.Profile = sketch15
pocket14.Type = "UpToFirst"
pocket14.Reversed = True

sketch16 = doc.addObject("Sketcher::SketchObject", "Sketch015")
body.addObject(sketch16)
sketch16.AttachmentSupport = (doc.XZ_Plane, [""])
sketch16.MapMode = "FlatFace"
sketch16.AttachmentOffset = App.Placement(V(0, 0, -4.3), App.Rotation())
sketch16.addGeometry([
    Part.ArcOfCircle(Part.Circle(V(12.2, 5.3, 0), V(0, 0, 1), 1), math.radians(53), math.radians(120)),
    Part.LineSegment(V(11.7, 6.2, 0), V(5, 2.3, 0)),
    Part.ArcOfCircle(Part.Circle(V(5.5, 1.4, 0), V(0, 0, 1), 1), math.radians(120), math.radians(195)),
    Part.ArcOfCircle(Part.Circle(V(0, 0, 0), V(0, 0, 1), 4.6), math.radians(-15), math.radians(15)),
    Part.ArcOfCircle(Part.Circle(V(5.5, -1.4, 0), V(0, 0, 1), 1), math.radians(165), math.radians(240)),
    Part.LineSegment(V(5, -2.3, 0), V(11.7, -6.2, 0)),
    Part.ArcOfCircle(Part.Circle(V(12.2, -5.3, 0), V(0, 0, 1), 1), math.radians(-120), math.radians(-53)),
    Part.ArcOfCircle(Part.Circle(V(14.5, -8.4, 0), V(0, 0, 1), 2.8), math.radians(127), math.radians(173)),
    Part.ArcOfCircle(Part.Circle(V(10.7, -7.9, 0), V(0, 0, 1), 1), math.radians(-7), math.radians(60)),
    Part.LineSegment(V(11.2, -7, 0), V(4.5, -3.2, 0)),
    Part.ArcOfCircle(Part.Circle(V(4, -4, 0), V(0, 0, 1), 1), math.radians(60), math.radians(135)),
    Part.ArcOfCircle(Part.Circle(V(0, 0, 0), V(0, 0, 1), 4.6), math.radians(-75), math.radians(-45)),
    Part.ArcOfCircle(Part.Circle(V(1.5, -5.4, 0), V(0, 0, 1), 1), math.radians(105), math.radians(180)),
    Part.LineSegment(V(0.5, -5.4, 0), V(0.5, -13.2, 0)),
    Part.ArcOfCircle(Part.Circle(V(1.5, -13.2, 0), V(0, 0, 1), 1), math.radians(-180), math.radians(-113)),
    Part.ArcOfCircle(Part.Circle(V(0, -16.7, 0), V(0, 0, 1), 2.8), math.radians(67), math.radians(113)),
    Part.ArcOfCircle(Part.Circle(V(-1.5, -13.2, 0), V(0, 0, 1), 1), math.radians(-67), math.radians(0)),
    Part.LineSegment(V(-0.5, -13.2, 0), V(-0.5, -5.4, 0)),
    Part.ArcOfCircle(Part.Circle(V(-1.5, -5.4, 0), V(0, 0, 1), 1), math.radians(0), math.radians(75)),
    Part.ArcOfCircle(Part.Circle(V(0, 0, 0), V(0, 0, 1), 4.6), math.radians(-135), math.radians(-105)),
    Part.ArcOfCircle(Part.Circle(V(-4, -4, 0), V(0, 0, 1), 1), math.radians(45), math.radians(120)),
    Part.LineSegment(V(-4.5, -3.2, 0), V(-11.2, -7, 0)),
    Part.ArcOfCircle(Part.Circle(V(-10.7, -7.9, 0), V(0, 0, 1), 1), math.radians(120), math.radians(187)),
    Part.ArcOfCircle(Part.Circle(V(-14.5, -8.4, 0), V(0, 0, 1), 2.8), math.radians(7), math.radians(53)),
    Part.ArcOfCircle(Part.Circle(V(-12.2, -5.3, 0), V(0, 0, 1), 1), math.radians(-127), math.radians(-60)),
    Part.LineSegment(V(-11.7, -6.2, 0), V(-5, -2.3, 0)),
    Part.ArcOfCircle(Part.Circle(V(-5.5, -1.4, 0), V(0, 0, 1), 1), math.radians(-60), math.radians(15)),
    Part.ArcOfCircle(Part.Circle(V(0, 0, 0), V(0, 0, 1), 4.6), math.radians(165), math.radians(195)),
    Part.ArcOfCircle(Part.Circle(V(-5.5, 1.4, 0), V(0, 0, 1), 1), math.radians(-15), math.radians(60)),
    Part.LineSegment(V(-5, 2.3, 0), V(-11.7, 6.2, 0)),
    Part.ArcOfCircle(Part.Circle(V(-12.2, 5.3, 0), V(0, 0, 1), 1), math.radians(60), math.radians(127)),
    Part.ArcOfCircle(Part.Circle(V(-14.5, 8.4, 0), V(0, 0, 1), 2.8), math.radians(-53), math.radians(-7)),
    Part.ArcOfCircle(Part.Circle(V(-10.7, 7.9, 0), V(0, 0, 1), 1), math.radians(173), math.radians(240)),
    Part.LineSegment(V(-11.2, 7, 0), V(-4.5, 3.2, 0)),
    Part.ArcOfCircle(Part.Circle(V(-4, 4, 0), V(0, 0, 1), 1), math.radians(-120), math.radians(-45)),
    Part.ArcOfCircle(Part.Circle(V(0, 0, 0), V(0, 0, 1), 4.6), math.radians(105), math.radians(135)),
    Part.ArcOfCircle(Part.Circle(V(-1.5, 5.4, 0), V(0, 0, 1), 1), math.radians(-75), math.radians(0)),
    Part.LineSegment(V(-0.5, 5.4, 0), V(-0.5, 13.2, 0)),
    Part.ArcOfCircle(Part.Circle(V(-1.5, 13.2, 0), V(0, 0, 1), 1), math.radians(0), math.radians(67)),
    Part.ArcOfCircle(Part.Circle(V(0, 16.7, 0), V(0, 0, 1), 2.8), math.radians(-113), math.radians(-67)),
    Part.ArcOfCircle(Part.Circle(V(1.5, 13.2, 0), V(0, 0, 1), 1), math.radians(113), math.radians(180)),
    Part.LineSegment(V(0.5, 13.2, 0), V(0.5, 5.4, 0)),
    Part.ArcOfCircle(Part.Circle(V(1.5, 5.4, 0), V(0, 0, 1), 1), math.radians(-180), math.radians(-105)),
    Part.ArcOfCircle(Part.Circle(V(0, 0, 0), V(0, 0, 1), 4.6), math.radians(45), math.radians(75)),
    Part.ArcOfCircle(Part.Circle(V(4, 4, 0), V(0, 0, 1), 1), math.radians(-135), math.radians(-60)),
    Part.LineSegment(V(4.5, 3.2, 0), V(11.2, 7, 0)),
    Part.ArcOfCircle(Part.Circle(V(10.7, 7.9, 0), V(0, 0, 1), 1), math.radians(-60), math.radians(7)),
    Part.ArcOfCircle(Part.Circle(V(14.5, 8.4, 0), V(0, 0, 1), 2.8), math.radians(-173), math.radians(-127)),
    Part.Circle(V(0, 0, 0), V(0, 0, 1), 2.1),
], False)
sketch16.addConstraint([
    Sketcher.Constraint("Tangent", 0, 2, 1, 1),
    Sketcher.Constraint("Tangent", 1, 2, 2, 1),
    Sketcher.Constraint("Tangent", 2, 2, 3, 2),
    Sketcher.Constraint("Tangent", 3, 1, 4, 1),
    Sketcher.Constraint("Tangent", 4, 2, 5, 1),
    Sketcher.Constraint("Tangent", 5, 2, 6, 1),
    Sketcher.Constraint("Tangent", 6, 2, 7, 1),
    Sketcher.Constraint("Tangent", 7, 2, 8, 1),
    Sketcher.Constraint("Tangent", 8, 2, 9, 1),
    Sketcher.Constraint("Tangent", 9, 2, 10, 1),
    Sketcher.Constraint("Tangent", 10, 2, 11, 2),
    Sketcher.Constraint("Tangent", 11, 1, 12, 1),
    Sketcher.Constraint("Tangent", 12, 2, 13, 1),
    Sketcher.Constraint("Tangent", 13, 2, 14, 1),
    Sketcher.Constraint("Tangent", 14, 2, 15, 1),
    Sketcher.Constraint("Tangent", 15, 2, 16, 1),
    Sketcher.Constraint("Tangent", 16, 2, 17, 1),
    Sketcher.Constraint("Tangent", 17, 2, 18, 1),
    Sketcher.Constraint("Tangent", 18, 2, 19, 2),
    Sketcher.Constraint("Tangent", 19, 1, 20, 1),
    Sketcher.Constraint("Tangent", 20, 2, 21, 1),
    Sketcher.Constraint("Tangent", 21, 2, 22, 1),
    Sketcher.Constraint("Tangent", 22, 2, 23, 1),
    Sketcher.Constraint("Tangent", 23, 2, 24, 1),
    Sketcher.Constraint("Tangent", 24, 2, 25, 1),
    Sketcher.Constraint("Tangent", 25, 2, 26, 1),
    Sketcher.Constraint("Tangent", 26, 2, 27, 2),
    Sketcher.Constraint("Tangent", 27, 1, 28, 1),
    Sketcher.Constraint("Tangent", 28, 2, 29, 1),
    Sketcher.Constraint("Tangent", 29, 2, 30, 1),
    Sketcher.Constraint("Tangent", 30, 2, 31, 1),
    Sketcher.Constraint("Tangent", 31, 2, 32, 1),
    Sketcher.Constraint("Tangent", 32, 2, 33, 1),
    Sketcher.Constraint("Tangent", 33, 2, 34, 1),
    Sketcher.Constraint("Tangent", 34, 2, 35, 2),
    Sketcher.Constraint("Tangent", 35, 1, 36, 1),
    Sketcher.Constraint("Tangent", 36, 2, 37, 1),
    Sketcher.Constraint("Tangent", 37, 2, 38, 1),
    Sketcher.Constraint("Tangent", 38, 2, 39, 1),
    Sketcher.Constraint("Tangent", 39, 2, 40, 1),
    Sketcher.Constraint("Tangent", 40, 2, 41, 1),
    Sketcher.Constraint("Tangent", 41, 2, 42, 1),
    Sketcher.Constraint("Tangent", 42, 2, 43, 2),
    Sketcher.Constraint("Tangent", 43, 1, 44, 1),
    Sketcher.Constraint("Tangent", 44, 2, 45, 1),
    Sketcher.Constraint("Tangent", 45, 2, 46, 1),
    Sketcher.Constraint("Tangent", 46, 2, 47, 1),
    Sketcher.Constraint("Tangent", 47, 2, 0, 1),
    Sketcher.Constraint("Vertical", 13),
    Sketcher.Constraint("Vertical", 17),
    Sketcher.Constraint("Vertical", 37),
    Sketcher.Constraint("Vertical", 41),
    Sketcher.Constraint("Coincident", 3, 3, -1, 1),
    Sketcher.Constraint("Coincident", 11, 3, -1, 1),
    Sketcher.Constraint("Coincident", 19, 3, -1, 1),
    Sketcher.Constraint("Coincident", 27, 3, -1, 1),
    Sketcher.Constraint("Coincident", 35, 3, -1, 1),
    Sketcher.Constraint("Coincident", 43, 3, -1, 1),
    Sketcher.Constraint("Coincident", 48, 3, -1, 1),
    Sketcher.Constraint("Equal", 0, 2),
    Sketcher.Constraint("Equal", 2, 4),
    Sketcher.Constraint("Equal", 4, 6),
    Sketcher.Constraint("Equal", 6, 8),
    Sketcher.Constraint("Equal", 8, 10),
    Sketcher.Constraint("Equal", 3, 11),
    Sketcher.Constraint("Equal", 10, 12),
    Sketcher.Constraint("Equal", 12, 14),
    Sketcher.Constraint("Equal", 7, 15),
    Sketcher.Constraint("Equal", 14, 16),
    Sketcher.Constraint("Equal", 16, 18),
    Sketcher.Constraint("Equal", 11, 19),
    Sketcher.Constraint("Equal", 18, 20),
    Sketcher.Constraint("Equal", 20, 22),
    Sketcher.Constraint("Equal", 15, 23),
    Sketcher.Constraint("Equal", 22, 24),
    Sketcher.Constraint("Equal", 24, 26),
    Sketcher.Constraint("Equal", 19, 27),
    Sketcher.Constraint("Equal", 26, 28),
    Sketcher.Constraint("Equal", 28, 30),
    Sketcher.Constraint("Equal", 23, 31),
    Sketcher.Constraint("Equal", 30, 32),
    Sketcher.Constraint("Equal", 32, 34),
    Sketcher.Constraint("Equal", 27, 35),
    Sketcher.Constraint("Equal", 34, 36),
    Sketcher.Constraint("Equal", 36, 38),
    Sketcher.Constraint("Equal", 31, 39),
    Sketcher.Constraint("Equal", 38, 40),
    Sketcher.Constraint("Equal", 40, 42),
    Sketcher.Constraint("Equal", 35, 43),
    Sketcher.Constraint("Equal", 42, 44),
    Sketcher.Constraint("Equal", 44, 46),
    Sketcher.Constraint("Equal", 39, 47),
    Sketcher.Constraint("Symmetric", 0, 3, 24, 3, -1, 1),
    Sketcher.Constraint("Symmetric", 6, 3, 30, 3, -1, 1),
    Sketcher.Constraint("Symmetric", 8, 3, 32, 3, -1, 1),
    Sketcher.Constraint("Symmetric", 14, 3, 38, 3, -1, 1),
    Sketcher.Constraint("Symmetric", 16, 3, 40, 3, -1, 1),
    Sketcher.Constraint("Symmetric", 22, 3, 46, 3, -1, 1),
    Sketcher.Constraint("Symmetric", 14, 3, 16, 3, -2),
    Sketcher.Constraint("Symmetric", 8, 3, 22, 3, -2),
    Sketcher.Constraint("Symmetric", 6, 3, 24, 3, -2),
    Sketcher.Constraint("Parallel", 5, 9),
    Sketcher.Constraint("Parallel", 1, 21),
    Sketcher.Constraint("Parallel", 21, 25),
    Sketcher.Constraint("Parallel", 9, 29),
    Sketcher.Constraint("Parallel", 29, 33),
    Sketcher.Constraint("Parallel", 25, 45),
    Sketcher.Constraint("Horizontal", 10, 3, 20, 3),
    Sketcher.Constraint("Equal", 5, 9),
    Sketcher.Constraint("Radius", 0, Q("1 mm")),
    Sketcher.Constraint("Diameter", 48, Q("4.2 mm")),
    Sketcher.Constraint("Radius", 7, Q("2.8 mm")),
    Sketcher.Constraint("Angle", 1, Q("-150 deg")),
    Sketcher.Constraint("Radius", 3, Q("4.65 mm")),
    Sketcher.Constraint("DistanceX", -1, 1, 12, 3, Q("1.5 mm")),
    Sketcher.Constraint("DistanceY", 15, 3, -1, 1, Q("16.7 mm")),
    Sketcher.Constraint("DistanceY", 7, 3, -1, 1, Q("8.35 mm")),
    Sketcher.Constraint("DistanceX", -1, 1, 6, 2, Q("12.787298 mm")),
    Sketcher.Constraint("DistanceY", 8, 3, -1, 1, Q("7.903329 mm")),
])
pocket15 = doc.addObject("PartDesign::Pocket", "Pocket014")
body.addObject(pocket15)
pocket15.Profile = sketch16
pocket15.Length = 4.3
pocket15.Reversed = True

doc.recompute()
